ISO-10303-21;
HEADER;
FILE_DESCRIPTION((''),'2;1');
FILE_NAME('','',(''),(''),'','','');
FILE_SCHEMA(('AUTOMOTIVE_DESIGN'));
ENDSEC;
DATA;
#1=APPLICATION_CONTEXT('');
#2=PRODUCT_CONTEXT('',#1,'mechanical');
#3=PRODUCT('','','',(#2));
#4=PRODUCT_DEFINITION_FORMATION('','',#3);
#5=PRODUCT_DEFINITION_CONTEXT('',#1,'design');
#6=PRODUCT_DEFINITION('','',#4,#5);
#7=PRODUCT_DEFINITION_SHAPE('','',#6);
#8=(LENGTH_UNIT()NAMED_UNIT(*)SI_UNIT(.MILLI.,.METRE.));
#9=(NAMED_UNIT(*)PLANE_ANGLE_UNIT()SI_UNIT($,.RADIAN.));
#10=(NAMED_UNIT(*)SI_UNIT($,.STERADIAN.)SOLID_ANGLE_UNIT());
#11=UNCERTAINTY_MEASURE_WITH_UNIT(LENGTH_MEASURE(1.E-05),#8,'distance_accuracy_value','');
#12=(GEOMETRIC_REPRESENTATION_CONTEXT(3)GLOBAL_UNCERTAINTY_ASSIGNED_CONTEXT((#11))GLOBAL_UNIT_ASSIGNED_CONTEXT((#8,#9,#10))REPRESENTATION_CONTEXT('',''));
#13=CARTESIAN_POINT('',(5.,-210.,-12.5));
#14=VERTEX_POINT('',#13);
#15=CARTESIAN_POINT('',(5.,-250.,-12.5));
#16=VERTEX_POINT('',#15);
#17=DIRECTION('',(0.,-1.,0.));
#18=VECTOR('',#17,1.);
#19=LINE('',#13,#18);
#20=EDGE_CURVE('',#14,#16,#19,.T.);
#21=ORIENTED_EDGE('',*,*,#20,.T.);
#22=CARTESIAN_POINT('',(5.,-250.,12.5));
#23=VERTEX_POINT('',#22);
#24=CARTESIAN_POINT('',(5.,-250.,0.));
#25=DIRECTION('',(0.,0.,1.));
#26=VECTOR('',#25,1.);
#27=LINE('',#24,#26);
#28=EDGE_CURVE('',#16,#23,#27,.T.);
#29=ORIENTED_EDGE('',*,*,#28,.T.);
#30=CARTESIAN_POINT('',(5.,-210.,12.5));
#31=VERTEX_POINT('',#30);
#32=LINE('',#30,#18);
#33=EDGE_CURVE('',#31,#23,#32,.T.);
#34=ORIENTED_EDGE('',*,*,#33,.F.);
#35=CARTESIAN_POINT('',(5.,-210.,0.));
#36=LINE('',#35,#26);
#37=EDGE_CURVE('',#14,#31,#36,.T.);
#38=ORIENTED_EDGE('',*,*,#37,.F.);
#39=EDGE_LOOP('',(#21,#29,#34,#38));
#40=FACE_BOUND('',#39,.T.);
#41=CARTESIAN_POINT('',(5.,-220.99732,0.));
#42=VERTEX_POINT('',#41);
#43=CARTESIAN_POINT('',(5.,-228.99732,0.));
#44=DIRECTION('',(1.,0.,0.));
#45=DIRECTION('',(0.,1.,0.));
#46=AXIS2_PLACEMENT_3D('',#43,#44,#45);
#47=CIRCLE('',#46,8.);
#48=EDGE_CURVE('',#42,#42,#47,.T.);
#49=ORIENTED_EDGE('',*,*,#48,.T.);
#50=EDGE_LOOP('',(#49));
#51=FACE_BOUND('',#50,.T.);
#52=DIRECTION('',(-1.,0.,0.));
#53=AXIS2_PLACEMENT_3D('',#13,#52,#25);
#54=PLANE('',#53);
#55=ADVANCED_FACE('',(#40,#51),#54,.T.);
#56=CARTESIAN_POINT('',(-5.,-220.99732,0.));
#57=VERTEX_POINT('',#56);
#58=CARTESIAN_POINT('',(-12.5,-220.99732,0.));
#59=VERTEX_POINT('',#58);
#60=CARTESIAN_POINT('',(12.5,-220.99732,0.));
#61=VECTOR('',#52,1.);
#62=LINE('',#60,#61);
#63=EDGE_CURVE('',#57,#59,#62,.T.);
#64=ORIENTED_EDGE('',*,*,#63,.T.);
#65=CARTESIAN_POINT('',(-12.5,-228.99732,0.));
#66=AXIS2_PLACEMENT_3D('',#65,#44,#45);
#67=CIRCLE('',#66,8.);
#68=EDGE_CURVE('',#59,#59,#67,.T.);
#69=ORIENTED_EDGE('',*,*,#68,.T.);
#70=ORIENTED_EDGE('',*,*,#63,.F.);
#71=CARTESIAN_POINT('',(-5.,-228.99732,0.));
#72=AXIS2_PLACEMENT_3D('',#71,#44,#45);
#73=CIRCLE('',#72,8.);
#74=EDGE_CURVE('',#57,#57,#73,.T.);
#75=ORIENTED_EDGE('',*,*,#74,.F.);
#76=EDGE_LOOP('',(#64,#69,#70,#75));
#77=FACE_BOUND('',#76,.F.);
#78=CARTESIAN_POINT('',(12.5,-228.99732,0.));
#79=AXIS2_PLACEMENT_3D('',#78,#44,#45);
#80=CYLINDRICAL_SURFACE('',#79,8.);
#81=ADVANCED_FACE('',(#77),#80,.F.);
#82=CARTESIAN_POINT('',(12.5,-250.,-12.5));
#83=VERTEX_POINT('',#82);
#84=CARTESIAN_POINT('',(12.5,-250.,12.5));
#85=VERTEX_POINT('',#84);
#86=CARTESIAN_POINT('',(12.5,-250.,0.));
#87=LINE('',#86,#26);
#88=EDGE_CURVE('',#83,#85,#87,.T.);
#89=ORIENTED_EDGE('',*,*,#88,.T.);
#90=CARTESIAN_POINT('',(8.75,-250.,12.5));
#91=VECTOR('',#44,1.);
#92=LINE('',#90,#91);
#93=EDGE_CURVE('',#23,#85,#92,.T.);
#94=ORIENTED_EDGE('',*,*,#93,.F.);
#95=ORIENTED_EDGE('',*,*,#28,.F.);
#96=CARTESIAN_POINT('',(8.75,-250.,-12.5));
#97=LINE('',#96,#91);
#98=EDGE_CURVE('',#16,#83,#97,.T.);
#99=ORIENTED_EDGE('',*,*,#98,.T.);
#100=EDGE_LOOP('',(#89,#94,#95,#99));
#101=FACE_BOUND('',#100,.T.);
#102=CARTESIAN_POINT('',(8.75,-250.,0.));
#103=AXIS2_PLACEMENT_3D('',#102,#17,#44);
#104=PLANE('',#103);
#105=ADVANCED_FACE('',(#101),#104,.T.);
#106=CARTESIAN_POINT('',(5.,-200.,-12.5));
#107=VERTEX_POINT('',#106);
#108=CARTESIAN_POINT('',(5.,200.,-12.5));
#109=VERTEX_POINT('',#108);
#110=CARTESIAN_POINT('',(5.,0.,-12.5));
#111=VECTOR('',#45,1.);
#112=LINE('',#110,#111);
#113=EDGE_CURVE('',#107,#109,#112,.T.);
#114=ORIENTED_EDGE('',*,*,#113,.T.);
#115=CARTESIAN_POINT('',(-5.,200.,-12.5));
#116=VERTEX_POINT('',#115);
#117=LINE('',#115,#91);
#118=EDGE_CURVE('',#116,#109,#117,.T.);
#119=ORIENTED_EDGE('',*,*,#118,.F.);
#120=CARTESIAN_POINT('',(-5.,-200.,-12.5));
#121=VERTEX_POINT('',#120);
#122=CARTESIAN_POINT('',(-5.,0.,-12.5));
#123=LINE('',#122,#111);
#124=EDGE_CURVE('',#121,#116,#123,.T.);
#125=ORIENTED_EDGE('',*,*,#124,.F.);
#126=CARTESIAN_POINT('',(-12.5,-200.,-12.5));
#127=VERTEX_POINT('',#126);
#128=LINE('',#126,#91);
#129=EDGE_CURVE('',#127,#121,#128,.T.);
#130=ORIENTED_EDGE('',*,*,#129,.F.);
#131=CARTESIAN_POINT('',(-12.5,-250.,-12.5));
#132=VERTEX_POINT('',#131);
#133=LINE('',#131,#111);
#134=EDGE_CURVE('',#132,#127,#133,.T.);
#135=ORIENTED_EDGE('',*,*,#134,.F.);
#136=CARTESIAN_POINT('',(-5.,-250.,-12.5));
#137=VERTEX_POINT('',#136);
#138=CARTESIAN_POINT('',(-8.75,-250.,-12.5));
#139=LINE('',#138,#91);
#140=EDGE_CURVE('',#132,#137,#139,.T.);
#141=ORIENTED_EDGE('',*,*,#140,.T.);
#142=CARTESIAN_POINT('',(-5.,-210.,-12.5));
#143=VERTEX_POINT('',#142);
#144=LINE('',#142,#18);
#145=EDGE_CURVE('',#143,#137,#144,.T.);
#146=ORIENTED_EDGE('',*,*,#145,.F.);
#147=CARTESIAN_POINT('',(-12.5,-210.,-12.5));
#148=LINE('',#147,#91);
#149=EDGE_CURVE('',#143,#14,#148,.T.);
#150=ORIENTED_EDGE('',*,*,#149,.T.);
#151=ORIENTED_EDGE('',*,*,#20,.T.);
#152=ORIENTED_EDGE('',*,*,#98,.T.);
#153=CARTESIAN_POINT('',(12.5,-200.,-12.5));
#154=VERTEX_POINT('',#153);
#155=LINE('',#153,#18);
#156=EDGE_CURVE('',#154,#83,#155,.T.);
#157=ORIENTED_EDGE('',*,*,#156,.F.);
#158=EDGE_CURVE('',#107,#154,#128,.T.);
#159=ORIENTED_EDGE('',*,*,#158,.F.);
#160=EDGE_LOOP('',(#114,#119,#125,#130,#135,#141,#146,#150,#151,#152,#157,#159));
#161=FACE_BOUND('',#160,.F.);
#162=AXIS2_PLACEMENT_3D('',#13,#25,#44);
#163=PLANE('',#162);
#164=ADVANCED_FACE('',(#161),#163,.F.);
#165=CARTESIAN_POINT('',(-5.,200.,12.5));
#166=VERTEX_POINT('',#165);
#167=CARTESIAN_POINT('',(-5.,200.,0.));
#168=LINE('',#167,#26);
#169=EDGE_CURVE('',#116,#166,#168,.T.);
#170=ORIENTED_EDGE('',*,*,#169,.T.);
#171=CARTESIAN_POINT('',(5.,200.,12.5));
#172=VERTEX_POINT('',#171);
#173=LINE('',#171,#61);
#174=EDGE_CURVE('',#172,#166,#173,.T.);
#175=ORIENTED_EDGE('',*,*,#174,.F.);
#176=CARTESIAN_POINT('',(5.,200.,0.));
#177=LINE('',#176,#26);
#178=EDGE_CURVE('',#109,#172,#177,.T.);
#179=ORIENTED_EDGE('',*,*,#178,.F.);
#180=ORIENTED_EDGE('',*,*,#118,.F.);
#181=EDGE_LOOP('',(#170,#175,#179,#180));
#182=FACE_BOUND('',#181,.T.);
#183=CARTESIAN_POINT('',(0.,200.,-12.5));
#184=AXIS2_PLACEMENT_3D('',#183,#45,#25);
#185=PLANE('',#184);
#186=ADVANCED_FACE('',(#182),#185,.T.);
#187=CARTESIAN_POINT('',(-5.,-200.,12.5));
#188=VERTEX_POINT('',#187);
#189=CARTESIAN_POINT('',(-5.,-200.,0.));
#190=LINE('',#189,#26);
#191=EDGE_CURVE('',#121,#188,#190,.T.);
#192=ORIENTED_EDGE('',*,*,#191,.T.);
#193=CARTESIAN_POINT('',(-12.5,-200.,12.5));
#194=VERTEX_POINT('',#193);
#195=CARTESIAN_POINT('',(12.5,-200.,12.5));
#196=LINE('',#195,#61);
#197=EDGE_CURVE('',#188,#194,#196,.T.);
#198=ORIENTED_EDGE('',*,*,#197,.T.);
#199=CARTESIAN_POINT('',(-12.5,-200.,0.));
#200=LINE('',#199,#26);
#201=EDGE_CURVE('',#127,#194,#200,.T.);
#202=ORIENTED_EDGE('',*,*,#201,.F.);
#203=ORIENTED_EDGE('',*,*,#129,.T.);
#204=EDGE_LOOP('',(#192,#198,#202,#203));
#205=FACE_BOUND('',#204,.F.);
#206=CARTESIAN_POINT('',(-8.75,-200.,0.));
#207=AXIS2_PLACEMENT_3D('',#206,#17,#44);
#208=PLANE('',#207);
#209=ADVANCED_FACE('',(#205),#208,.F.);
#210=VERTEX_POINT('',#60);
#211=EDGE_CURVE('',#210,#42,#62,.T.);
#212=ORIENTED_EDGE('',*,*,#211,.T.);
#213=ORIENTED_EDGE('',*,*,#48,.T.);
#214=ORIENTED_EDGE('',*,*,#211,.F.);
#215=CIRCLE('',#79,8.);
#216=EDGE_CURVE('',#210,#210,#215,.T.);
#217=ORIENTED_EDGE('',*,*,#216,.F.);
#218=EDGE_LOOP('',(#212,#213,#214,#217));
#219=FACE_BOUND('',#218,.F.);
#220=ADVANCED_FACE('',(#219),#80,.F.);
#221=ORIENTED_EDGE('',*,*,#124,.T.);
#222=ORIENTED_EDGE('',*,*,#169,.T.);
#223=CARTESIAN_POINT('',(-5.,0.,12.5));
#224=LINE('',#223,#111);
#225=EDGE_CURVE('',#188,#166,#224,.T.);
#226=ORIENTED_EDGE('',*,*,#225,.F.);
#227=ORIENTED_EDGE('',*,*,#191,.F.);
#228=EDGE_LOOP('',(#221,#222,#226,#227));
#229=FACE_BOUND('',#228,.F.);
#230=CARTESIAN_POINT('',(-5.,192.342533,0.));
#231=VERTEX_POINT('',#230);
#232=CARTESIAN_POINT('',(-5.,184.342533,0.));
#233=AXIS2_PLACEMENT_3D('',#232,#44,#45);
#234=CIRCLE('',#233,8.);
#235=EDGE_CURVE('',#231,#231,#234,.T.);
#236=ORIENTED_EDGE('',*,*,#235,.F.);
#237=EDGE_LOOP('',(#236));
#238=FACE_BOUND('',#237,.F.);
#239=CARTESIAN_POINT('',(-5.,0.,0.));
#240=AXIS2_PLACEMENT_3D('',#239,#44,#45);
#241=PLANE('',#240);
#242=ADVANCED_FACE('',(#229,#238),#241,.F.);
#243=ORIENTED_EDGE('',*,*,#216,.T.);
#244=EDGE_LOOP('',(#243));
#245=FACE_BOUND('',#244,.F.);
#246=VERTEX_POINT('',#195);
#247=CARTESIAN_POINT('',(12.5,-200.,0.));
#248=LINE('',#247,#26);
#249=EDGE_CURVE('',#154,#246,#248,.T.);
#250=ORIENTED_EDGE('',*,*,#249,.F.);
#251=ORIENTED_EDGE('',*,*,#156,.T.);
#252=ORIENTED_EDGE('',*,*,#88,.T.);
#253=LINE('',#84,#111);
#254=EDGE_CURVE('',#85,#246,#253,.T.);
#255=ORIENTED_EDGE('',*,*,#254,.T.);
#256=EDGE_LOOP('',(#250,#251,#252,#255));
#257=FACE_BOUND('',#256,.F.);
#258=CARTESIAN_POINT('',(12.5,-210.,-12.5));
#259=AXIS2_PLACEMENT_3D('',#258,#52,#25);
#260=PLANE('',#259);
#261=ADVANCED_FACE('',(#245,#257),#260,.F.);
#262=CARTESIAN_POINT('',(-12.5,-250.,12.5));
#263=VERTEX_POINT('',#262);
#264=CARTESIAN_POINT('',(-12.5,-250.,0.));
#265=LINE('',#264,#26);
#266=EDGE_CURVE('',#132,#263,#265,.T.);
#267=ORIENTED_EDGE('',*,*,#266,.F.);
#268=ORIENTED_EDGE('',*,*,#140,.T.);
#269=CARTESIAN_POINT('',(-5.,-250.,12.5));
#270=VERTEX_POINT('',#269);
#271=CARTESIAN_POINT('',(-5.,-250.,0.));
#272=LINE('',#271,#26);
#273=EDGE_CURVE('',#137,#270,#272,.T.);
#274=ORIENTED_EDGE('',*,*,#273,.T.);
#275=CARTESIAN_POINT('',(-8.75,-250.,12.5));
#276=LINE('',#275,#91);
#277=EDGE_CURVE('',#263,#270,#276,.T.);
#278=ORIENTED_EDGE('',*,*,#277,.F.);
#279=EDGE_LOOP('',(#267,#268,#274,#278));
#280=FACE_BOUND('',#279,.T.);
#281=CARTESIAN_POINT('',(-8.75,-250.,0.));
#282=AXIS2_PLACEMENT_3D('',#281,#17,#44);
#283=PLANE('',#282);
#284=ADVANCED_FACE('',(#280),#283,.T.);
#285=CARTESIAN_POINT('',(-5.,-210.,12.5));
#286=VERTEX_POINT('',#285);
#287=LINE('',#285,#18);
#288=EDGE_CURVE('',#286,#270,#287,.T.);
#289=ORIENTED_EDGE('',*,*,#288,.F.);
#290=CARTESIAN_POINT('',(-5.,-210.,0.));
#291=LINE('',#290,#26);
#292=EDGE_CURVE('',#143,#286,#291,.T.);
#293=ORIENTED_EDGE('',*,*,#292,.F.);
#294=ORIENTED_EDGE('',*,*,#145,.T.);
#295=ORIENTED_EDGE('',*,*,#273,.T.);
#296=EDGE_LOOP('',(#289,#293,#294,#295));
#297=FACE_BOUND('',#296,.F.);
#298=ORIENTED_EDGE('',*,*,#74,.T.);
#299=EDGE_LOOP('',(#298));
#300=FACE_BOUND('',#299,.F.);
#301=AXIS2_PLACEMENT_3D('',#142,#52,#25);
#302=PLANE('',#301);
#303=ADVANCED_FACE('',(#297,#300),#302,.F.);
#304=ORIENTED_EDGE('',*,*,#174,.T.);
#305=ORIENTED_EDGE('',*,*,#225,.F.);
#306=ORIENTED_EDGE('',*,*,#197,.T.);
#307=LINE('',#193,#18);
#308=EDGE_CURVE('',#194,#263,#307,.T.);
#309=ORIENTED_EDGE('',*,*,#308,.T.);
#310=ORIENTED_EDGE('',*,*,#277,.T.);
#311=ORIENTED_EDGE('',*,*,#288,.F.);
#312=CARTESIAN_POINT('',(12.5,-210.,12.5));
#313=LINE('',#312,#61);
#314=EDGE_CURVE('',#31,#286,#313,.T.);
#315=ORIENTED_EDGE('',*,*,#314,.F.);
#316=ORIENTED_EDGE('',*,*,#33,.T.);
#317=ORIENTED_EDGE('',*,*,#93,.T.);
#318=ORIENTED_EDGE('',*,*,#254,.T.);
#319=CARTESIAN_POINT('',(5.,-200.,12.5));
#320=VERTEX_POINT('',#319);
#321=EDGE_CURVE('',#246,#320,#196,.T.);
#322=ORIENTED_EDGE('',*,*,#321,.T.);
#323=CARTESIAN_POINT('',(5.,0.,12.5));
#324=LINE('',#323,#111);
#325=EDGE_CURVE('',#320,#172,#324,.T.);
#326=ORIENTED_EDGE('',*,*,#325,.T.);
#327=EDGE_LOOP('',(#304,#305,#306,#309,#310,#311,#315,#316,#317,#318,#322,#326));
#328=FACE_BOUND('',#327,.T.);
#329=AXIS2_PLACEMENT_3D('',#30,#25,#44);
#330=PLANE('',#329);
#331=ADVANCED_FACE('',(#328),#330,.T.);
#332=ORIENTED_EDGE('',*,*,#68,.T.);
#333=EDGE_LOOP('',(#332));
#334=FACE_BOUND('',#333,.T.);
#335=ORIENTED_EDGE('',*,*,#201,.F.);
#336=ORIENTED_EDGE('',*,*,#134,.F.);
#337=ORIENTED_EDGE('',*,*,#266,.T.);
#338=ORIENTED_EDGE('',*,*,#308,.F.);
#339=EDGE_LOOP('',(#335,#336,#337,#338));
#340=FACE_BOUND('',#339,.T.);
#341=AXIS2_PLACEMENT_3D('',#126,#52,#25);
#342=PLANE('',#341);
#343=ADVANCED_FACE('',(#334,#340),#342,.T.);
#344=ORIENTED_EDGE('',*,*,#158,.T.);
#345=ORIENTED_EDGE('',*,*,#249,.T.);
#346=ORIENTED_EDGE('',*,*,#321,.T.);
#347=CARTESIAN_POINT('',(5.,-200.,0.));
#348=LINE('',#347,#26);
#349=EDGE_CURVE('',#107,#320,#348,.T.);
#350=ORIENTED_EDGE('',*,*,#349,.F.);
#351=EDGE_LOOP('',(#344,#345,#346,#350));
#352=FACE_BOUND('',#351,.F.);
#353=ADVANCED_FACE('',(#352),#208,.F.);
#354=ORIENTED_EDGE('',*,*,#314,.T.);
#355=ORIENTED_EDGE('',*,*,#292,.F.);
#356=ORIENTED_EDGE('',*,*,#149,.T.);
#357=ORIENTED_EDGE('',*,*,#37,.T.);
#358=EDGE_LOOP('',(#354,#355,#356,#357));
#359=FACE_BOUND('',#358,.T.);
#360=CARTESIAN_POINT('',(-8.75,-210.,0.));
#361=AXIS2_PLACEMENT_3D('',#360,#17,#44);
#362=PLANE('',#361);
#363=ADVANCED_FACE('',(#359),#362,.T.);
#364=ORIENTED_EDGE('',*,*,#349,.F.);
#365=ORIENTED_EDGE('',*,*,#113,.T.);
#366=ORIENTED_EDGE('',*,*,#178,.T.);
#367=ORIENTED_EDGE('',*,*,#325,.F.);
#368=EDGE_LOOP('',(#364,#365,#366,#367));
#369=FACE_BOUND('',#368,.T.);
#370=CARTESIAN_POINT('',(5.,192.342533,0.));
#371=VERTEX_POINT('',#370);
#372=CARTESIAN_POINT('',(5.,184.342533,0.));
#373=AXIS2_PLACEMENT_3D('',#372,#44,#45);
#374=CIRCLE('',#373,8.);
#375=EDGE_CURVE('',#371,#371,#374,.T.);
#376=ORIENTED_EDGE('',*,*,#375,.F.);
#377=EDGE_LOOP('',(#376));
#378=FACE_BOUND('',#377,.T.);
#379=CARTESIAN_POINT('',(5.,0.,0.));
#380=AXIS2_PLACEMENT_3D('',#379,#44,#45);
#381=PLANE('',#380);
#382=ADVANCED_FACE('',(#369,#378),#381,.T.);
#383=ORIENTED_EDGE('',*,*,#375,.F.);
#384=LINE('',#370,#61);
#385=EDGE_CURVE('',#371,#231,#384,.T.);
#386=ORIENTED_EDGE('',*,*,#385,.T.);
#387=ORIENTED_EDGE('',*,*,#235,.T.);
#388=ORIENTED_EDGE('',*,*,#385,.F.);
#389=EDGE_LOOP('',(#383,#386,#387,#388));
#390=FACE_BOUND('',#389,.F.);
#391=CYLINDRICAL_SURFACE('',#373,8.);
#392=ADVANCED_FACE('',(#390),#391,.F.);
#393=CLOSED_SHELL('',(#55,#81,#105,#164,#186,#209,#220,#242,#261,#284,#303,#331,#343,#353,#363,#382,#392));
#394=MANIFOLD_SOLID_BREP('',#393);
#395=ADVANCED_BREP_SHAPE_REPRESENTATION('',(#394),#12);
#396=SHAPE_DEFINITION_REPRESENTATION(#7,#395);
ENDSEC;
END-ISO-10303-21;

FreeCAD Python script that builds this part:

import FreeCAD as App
import Part
import Sketcher

V = App.Vector
Q = App.Units.Quantity


def add_polygon(sketch, points):
    """Adds a closed chain of lines whose ends are joined by coincident constraints."""
    first, n = sketch.GeometryCount, len(points)
    for a, b in zip(points, points[1:] + points[:1]):
        sketch.addGeometry(Part.LineSegment(App.Vector(*a, 0), App.Vector(*b, 0)), False)
    for i in range(n):
        sketch.addConstraint(Sketcher.Constraint("Coincident", first + i, 2, first + (i + 1) % n, 1))

doc = App.newDocument("Part")
body = doc.addObject("PartDesign::Body", "Body")

sketch1 = body.newObject("Sketcher::SketchObject", "Sketch")
sketch1.AttachmentSupport = (doc.getObject("YZ_Plane"), [""])
sketch1.MapMode = "FlatFace"
add_polygon(sketch1, [(-200, 12), (-200, -12), (200, -12), (200, 12)])
sketch1.addConstraint(Sketcher.Constraint("Vertical", 0))
sketch1.addConstraint(Sketcher.Constraint("Horizontal", 1))
sketch1.addConstraint(Sketcher.Constraint("Vertical", 2))
sketch1.addConstraint(Sketcher.Constraint("Horizontal", 3))
sketch1.addConstraint(Sketcher.Constraint("Symmetric", 0, 2, 2, 2, -1, 1))
sketch1.addConstraint(Sketcher.Constraint("DistanceX", 1, 1, 1, 2, Q("400 mm")))
sketch1.addConstraint(Sketcher.Constraint("DistanceY", 0, 2, 0, 1, Q("25 mm")))
pad1 = body.newObject("PartDesign::Pad", "Pad")
pad1.Profile = sketch1
pad1.Type = "TwoLengths"
pad1.Length = 5
pad1.Length2 = 5

sketch2 = body.newObject("Sketcher::SketchObject", "Sketch001")
sketch2.AttachmentSupport = (doc.getObject("XZ_Plane"), [""])
sketch2.MapMode = "FlatFace"
sketch2.AttachmentOffset = App.Placement(V(0, 0, 200), App.Rotation())
add_polygon(sketch2, [(-12, 12), (-12, -12), (12, -12), (12, 12)])
sketch2.addConstraint(Sketcher.Constraint("Vertical", 0))
sketch2.addConstraint(Sketcher.Constraint("Horizontal", 1))
sketch2.addConstraint(Sketcher.Constraint("Vertical", 2))
sketch2.addConstraint(Sketcher.Constraint("Horizontal", 3))
sketch2.addConstraint(Sketcher.Constraint("Symmetric", 0, 2, 2, 2, -1, 1))
sketch2.addConstraint(Sketcher.Constraint("Equal", 3, 0))
sketch2.addConstraint(Sketcher.Constraint("DistanceX", 1, 1, 1, 2, Q("25 mm")))
pad2 = body.newObject("PartDesign::Pad", "Pad001")
pad2.Profile = sketch2
pad2.Length = 10

sketch3 = body.newObject("Sketcher::SketchObject", "Sketch002")
sketch3.AttachmentSupport = (doc.getObject("XZ_Plane"), [""])
sketch3.MapMode = "FlatFace"
sketch3.AttachmentOffset = App.Placement(V(0, 0, 210), App.Rotation())
add_polygon(sketch3, [(5, 12), (5, -12), (12, -12), (12, 12)])
add_polygon(sketch3, [(-12, 12), (-12, -12), (-5, -12), (-5, 12)])
sketch3.addConstraint(Sketcher.Constraint("Vertical", 0))
sketch3.addConstraint(Sketcher.Constraint("Horizontal", 1))
sketch3.addConstraint(Sketcher.Constraint("Vertical", 2))
sketch3.addConstraint(Sketcher.Constraint("Horizontal", 3))
sketch3.addConstraint(Sketcher.Constraint("Vertical", 4))
sketch3.addConstraint(Sketcher.Constraint("Horizontal", 5))
sketch3.addConstraint(Sketcher.Constraint("Vertical", 6))
sketch3.addConstraint(Sketcher.Constraint("Horizontal", 7))
sketch3.addConstraint(Sketcher.Constraint("Symmetric", 2, 2, 4, 2, -1, 1))
sketch3.addConstraint(Sketcher.Constraint("Symmetric", 0, 2, 6, 2, -1, 1))
sketch3.addConstraint(Sketcher.Constraint("Horizontal", 1, 2, 4, 2))
sketch3.addConstraint(Sketcher.Constraint("DistanceY", 0, 2, 0, 1, Q("25 mm")))
sketch3.addConstraint(Sketcher.Constraint("DistanceX", 1, 1, 1, 2, Q("7.5 mm")))
sketch3.addConstraint(Sketcher.Constraint("DistanceX", -1, 1, 0, 2, Q("5 mm")))
pad3 = body.newObject("PartDesign::Pad", "Pad002")
pad3.Profile = sketch3
pad3.Length = 40

sketch4 = body.newObject("Sketcher::SketchObject", "Sketch003")
sketch4.AttachmentSupport = (doc.getObject("YZ_Plane"), [""])
sketch4.MapMode = "FlatFace"
sketch4.AttachmentOffset = App.Placement(V(0, 0, 12.5), App.Rotation())
sketch4.addGeometry(Part.Circle(V(-229, 0, 0), V(0, 0, 1), 8), False)
sketch4.addConstraint(Sketcher.Constraint("PointOnObject", 0, 3, -1))
sketch4.addConstraint(Sketcher.Constraint("Diameter", 0, Q("16 mm")))
sketch4.addConstraint(Sketcher.Constraint("DistanceX", 0, 3, -1, 1, Q("228.99732 mm")))
pocket1 = body.newObject("PartDesign::Pocket", "Pocket")
pocket1.Profile = sketch4
pocket1.Length = 25

sketch5 = body.newObject("Sketcher::SketchObject", "Sketch004")
sketch5.AttachmentSupport = (doc.getObject("YZ_Plane"), [""])
sketch5.MapMode = "FlatFace"
sketch5.AttachmentOffset = App.Placement(V(0, 0, 5), App.Rotation())
sketch5.addGeometry(Part.Circle(V(235, 0, 0), V(0, 0, 1), 8), False)
sketch5.addConstraint(Sketcher.Constraint("PointOnObject", 0, 3, -1))
sketch5.addConstraint(Sketcher.Constraint("Diameter", 0, Q("16 mm")))
sketch5.addConstraint(Sketcher.Constraint("DistanceX", -1, 1, 0, 3, Q("234.889656 mm")))
pocket2 = body.newObject("PartDesign::Pocket", "Pocket001")
pocket2.Profile = sketch5
pocket2.Length = 25

sketch6 = body.newObject("Sketcher::SketchObject", "Sketch005")
sketch6.AttachmentSupport = (doc.getObject("YZ_Plane"), [""])
sketch6.MapMode = "FlatFace"
sketch6.AttachmentOffset = App.Placement(V(0, 0, 5), App.Rotation())
sketch6.addGeometry(Part.Circle(V(184, 0, 0), V(0, 0, 1), 8), False)
sketch6.addConstraint(Sketcher.Constraint("PointOnObject", 0, 3, -1))
sketch6.addConstraint(Sketcher.Constraint("Diameter", 0, Q("16 mm")))
sketch6.addConstraint(Sketcher.Constraint("DistanceX", -1, 1, 0, 3, Q("184.342533 mm")))
pocket3 = body.newObject("PartDesign::Pocket", "Pocket002")
pocket3.Profile = sketch6
pocket3.Length = 25

doc.recompute()
